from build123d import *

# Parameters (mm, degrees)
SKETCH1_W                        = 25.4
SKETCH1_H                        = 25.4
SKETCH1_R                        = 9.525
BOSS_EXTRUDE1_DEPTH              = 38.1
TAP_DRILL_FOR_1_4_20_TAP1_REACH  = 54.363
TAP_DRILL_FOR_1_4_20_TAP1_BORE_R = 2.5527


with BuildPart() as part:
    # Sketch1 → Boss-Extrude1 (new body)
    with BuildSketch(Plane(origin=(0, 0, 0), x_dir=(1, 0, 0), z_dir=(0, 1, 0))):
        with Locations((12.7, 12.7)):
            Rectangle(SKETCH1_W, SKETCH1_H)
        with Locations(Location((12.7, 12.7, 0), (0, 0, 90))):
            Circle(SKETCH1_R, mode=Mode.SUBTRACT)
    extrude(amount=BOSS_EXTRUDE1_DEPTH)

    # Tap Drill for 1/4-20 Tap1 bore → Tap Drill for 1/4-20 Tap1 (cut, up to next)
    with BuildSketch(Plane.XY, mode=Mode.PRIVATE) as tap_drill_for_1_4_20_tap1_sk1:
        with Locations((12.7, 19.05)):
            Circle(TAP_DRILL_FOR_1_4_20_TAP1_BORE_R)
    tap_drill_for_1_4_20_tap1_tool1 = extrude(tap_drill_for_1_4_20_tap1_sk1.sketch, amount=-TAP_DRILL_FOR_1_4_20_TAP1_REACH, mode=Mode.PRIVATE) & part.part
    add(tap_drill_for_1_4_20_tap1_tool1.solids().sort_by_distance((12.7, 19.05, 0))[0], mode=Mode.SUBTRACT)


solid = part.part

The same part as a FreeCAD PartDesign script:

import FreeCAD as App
import Part
import Sketcher

V = App.Vector
Q = App.Units.Quantity

doc = App.newDocument("Part")
body = doc.addObject("PartDesign::Body", "Body")

sketch1 = doc.addObject("Sketcher::SketchObject", "Sketch")
body.addObject(sketch1)
sketch1.AttachmentSupport = (doc.XZ_Plane, [""])
sketch1.MapMode = "FlatFace"
sketch1.addGeometry(Part.LineSegment(V(0, -25, 0), V(0, 0, 0)), False)
sketch1.addGeometry(Part.LineSegment(V(0, 0, 0), V(25, 0, 0)), False)
sketch1.addGeometry(Part.LineSegment(V(25, 0, 0), V(25, -25, 0)), False)
sketch1.addGeometry(Part.LineSegment(V(25, -25, 0), V(0, -25, 0)), False)
sketch1.addGeometry(Part.Circle(V(13, -13, 0), V(0, 0, 1), 10), False)
sketch1.addConstraint(Sketcher.Constraint("Coincident", 0, 2, 1, 1))
sketch1.addConstraint(Sketcher.Constraint("Coincident", 1, 2, 2, 1))
sketch1.addConstraint(Sketcher.Constraint("Coincident", 2, 2, 3, 1))
sketch1.addConstraint(Sketcher.Constraint("Coincident", 3, 2, 0, 1))
sketch1.addConstraint(Sketcher.Constraint("Vertical", 0))
sketch1.addConstraint(Sketcher.Constraint("Horizontal", 1))
sketch1.addConstraint(Sketcher.Constraint("Vertical", 2))
sketch1.addConstraint(Sketcher.Constraint("Horizontal", 3))
sketch1.addConstraint(Sketcher.Constraint("Coincident", 0, 2, -1, 1))
sketch1.addConstraint(Sketcher.Constraint("Equal", 3, 0))
sketch1.addConstraint(Sketcher.Constraint("Diameter", 4, Q("0.75 in")))
sketch1.addConstraint(Sketcher.Constraint("DistanceX", 1, 1, 1, 2, Q("1 in")))
sketch1.addConstraint(Sketcher.Constraint("DistanceX", -1, 1, 4, 3, Q("0.5 in")))
sketch1.addConstraint(Sketcher.Constraint("DistanceY", 4, 3, -1, 1, Q("0.5 in")))
pad1 = doc.addObject("PartDesign::Pad", "Pad")
body.addObject(pad1)
pad1.Profile = sketch1
pad1.Length = Q("1.5 in")
pad1.Reversed = True

sketch2 = doc.addObject("Sketcher::SketchObject", "Sketch001")
body.addObject(sketch2)
sketch2.AttachmentSupport = (doc.XY_Plane, [""])
sketch2.MapMode = "FlatFace"
sketch2.addGeometry(Part.Circle(V(12.7, 19.1, 0), V(0, 0, 1), 2.6), False)
sketch2.addConstraint(Sketcher.Constraint("Diameter", 0, Q("0.201 in")))
sketch2.addConstraint(Sketcher.Constraint("DistanceX", -1, 1, 0, 3, Q("0.5 in")))
sketch2.addConstraint(Sketcher.Constraint("DistanceY", -1, 1, 0, 3, Q("0.75 in")))
pocket1 = doc.addObject("PartDesign::Pocket", "Pocket")
body.addObject(pocket1)
pocket1.Profile = sketch2
pocket1.Type = "UpToFirst"

doc.recompute()
